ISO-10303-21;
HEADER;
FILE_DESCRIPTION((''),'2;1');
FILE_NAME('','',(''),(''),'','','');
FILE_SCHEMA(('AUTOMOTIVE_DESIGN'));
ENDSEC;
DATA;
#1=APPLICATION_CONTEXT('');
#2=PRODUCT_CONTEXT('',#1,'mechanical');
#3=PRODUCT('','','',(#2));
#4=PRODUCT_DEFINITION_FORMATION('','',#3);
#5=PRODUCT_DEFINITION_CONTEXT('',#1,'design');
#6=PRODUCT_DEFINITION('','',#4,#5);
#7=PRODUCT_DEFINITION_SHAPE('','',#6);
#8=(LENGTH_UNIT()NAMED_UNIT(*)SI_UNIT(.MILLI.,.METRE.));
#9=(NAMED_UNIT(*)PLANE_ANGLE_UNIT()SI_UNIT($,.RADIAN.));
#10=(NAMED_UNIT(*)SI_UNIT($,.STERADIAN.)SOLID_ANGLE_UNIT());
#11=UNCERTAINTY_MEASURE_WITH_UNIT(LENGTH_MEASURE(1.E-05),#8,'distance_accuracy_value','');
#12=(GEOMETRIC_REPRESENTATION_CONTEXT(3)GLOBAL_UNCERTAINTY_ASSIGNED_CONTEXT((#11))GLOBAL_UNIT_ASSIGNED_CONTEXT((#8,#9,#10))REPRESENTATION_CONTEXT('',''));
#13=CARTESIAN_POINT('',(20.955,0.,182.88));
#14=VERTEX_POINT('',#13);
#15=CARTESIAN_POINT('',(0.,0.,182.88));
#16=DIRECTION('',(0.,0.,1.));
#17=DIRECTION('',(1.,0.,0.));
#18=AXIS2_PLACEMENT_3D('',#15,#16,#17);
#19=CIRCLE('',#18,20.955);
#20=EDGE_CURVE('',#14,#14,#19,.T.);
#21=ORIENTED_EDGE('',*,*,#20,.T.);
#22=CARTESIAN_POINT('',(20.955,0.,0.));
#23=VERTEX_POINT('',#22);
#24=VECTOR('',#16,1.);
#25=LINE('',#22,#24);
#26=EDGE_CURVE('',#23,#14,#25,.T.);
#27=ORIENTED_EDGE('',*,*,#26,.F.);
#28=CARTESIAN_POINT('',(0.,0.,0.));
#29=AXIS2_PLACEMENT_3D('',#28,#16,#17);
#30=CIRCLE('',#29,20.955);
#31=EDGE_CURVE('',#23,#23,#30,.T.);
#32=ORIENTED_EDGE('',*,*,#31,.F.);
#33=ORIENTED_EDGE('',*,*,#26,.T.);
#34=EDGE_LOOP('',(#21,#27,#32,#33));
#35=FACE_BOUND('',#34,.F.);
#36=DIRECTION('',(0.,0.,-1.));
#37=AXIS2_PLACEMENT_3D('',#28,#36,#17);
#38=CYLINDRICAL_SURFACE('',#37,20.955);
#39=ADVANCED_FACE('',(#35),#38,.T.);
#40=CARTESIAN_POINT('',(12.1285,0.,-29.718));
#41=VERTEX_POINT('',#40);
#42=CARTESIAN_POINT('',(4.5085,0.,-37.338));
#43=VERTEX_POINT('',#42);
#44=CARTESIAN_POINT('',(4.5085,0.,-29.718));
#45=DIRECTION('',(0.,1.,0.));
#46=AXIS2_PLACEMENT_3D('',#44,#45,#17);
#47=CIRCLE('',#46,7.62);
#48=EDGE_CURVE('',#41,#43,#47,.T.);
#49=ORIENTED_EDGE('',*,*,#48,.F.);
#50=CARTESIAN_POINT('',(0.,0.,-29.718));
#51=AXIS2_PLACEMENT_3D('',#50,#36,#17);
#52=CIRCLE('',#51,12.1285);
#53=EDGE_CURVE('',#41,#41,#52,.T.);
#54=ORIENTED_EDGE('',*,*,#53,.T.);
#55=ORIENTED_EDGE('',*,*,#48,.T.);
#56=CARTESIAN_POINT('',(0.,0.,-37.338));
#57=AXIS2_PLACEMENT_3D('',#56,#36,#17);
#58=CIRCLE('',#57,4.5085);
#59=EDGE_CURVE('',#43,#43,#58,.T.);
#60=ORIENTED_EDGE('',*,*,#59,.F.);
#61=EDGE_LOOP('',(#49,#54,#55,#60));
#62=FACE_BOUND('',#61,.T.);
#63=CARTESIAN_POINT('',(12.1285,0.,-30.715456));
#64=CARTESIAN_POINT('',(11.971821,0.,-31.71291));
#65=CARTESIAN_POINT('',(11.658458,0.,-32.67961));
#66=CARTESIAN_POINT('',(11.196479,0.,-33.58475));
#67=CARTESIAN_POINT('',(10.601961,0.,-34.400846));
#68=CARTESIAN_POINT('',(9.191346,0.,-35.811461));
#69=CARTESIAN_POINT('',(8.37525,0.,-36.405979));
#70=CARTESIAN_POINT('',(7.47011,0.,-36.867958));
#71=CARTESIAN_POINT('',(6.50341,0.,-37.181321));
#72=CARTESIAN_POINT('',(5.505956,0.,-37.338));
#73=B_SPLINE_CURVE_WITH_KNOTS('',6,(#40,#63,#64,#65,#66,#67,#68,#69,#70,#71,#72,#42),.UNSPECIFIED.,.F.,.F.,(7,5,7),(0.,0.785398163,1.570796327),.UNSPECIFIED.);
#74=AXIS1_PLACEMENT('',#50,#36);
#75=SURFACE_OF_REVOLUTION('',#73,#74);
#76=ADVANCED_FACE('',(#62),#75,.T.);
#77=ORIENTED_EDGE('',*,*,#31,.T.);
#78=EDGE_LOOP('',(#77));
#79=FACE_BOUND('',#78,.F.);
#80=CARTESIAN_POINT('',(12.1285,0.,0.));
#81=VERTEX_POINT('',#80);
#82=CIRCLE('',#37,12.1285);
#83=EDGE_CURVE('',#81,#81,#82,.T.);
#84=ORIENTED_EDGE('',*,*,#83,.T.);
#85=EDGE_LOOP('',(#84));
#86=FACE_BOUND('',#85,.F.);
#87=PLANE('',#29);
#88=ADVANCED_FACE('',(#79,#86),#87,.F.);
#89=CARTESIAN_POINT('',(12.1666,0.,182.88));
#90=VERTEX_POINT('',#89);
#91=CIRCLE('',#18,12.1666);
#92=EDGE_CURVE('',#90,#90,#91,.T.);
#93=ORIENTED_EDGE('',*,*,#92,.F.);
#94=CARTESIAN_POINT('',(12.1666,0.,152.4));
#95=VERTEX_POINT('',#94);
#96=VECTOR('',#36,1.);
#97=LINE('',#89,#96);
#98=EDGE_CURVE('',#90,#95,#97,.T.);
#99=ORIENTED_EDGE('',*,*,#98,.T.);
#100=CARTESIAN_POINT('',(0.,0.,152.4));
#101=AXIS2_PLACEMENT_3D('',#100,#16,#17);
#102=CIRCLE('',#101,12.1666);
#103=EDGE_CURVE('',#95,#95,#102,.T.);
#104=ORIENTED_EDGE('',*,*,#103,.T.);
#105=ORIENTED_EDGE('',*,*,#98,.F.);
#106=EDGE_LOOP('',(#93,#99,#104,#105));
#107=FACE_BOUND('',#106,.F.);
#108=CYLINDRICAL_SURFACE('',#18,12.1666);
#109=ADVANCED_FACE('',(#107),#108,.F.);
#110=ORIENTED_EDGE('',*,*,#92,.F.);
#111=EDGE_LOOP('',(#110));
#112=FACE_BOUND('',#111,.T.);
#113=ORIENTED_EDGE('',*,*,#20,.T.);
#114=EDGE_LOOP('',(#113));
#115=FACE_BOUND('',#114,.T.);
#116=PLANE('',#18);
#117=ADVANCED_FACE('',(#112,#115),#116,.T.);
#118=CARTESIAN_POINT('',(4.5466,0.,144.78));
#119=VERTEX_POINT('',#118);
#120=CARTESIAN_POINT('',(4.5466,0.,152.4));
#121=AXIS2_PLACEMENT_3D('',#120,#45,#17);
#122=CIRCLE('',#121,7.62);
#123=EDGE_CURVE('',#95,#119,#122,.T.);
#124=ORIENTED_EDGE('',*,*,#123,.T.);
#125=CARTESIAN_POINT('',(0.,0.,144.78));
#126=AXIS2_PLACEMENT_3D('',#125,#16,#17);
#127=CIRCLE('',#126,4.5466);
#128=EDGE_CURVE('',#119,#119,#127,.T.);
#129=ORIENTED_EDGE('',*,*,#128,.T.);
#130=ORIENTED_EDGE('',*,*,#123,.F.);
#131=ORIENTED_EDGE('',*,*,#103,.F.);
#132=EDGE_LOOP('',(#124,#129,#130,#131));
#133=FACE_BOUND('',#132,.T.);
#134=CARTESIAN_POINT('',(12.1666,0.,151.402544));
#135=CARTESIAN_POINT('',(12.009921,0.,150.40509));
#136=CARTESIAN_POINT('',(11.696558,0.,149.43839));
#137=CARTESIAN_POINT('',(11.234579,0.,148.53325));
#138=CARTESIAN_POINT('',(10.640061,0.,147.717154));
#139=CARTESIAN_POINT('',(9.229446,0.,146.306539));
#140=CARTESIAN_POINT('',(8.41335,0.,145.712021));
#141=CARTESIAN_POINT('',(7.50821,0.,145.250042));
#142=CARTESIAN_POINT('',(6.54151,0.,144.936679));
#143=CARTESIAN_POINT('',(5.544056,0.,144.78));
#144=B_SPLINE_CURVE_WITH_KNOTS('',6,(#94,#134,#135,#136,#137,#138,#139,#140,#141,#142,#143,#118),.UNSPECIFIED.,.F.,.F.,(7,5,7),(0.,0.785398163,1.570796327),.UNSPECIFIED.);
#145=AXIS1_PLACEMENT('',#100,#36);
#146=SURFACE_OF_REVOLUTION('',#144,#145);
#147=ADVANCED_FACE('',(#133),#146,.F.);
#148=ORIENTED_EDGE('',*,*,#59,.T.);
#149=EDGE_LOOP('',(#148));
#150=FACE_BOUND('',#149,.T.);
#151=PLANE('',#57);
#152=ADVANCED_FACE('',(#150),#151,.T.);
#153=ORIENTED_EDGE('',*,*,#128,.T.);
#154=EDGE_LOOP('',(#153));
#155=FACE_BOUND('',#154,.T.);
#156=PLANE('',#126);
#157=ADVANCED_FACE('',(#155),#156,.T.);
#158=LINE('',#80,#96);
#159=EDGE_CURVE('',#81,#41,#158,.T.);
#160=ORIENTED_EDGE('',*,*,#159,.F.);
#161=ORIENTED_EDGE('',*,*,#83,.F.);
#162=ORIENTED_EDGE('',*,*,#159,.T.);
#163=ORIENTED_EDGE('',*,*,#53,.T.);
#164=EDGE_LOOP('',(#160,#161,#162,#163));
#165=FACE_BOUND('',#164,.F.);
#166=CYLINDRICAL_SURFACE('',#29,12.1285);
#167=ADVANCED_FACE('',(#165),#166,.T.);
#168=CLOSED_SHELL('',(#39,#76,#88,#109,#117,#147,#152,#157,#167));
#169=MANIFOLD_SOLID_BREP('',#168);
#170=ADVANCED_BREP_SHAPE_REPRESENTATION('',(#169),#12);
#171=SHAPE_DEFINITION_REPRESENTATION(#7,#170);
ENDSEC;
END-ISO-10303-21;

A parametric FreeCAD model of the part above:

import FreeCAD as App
import Part
import Sketcher
from FreeCAD import Vector
Q = App.Units.Quantity


def edges_at(feature, points):
    """Names of the edges that pass closest to the given points."""
    edges = feature.Shape.Edges
    near = lambda p: min(range(len(edges)), key=lambda i: edges[i].distToShape(Part.Vertex(*p))[0])
    return sorted({f"Edge{near(p) + 1}" for p in points})

doc = App.newDocument("Part")
body = doc.addObject("PartDesign::Body", "Body")

sketch1 = body.newObject("Sketcher::SketchObject", "Sketch")
sketch1.AttachmentSupport = (doc.getObject("XY_Plane"), [""])
sketch1.MapMode = "FlatFace"
sketch1.addGeometry(Part.Circle(Vector(0, 0, 0), Vector(0, 0, 1), 20.955), False)
sketch1.addConstraint(Sketcher.Constraint("Coincident", 0, 3, -1, 1))
sketch1.addConstraint(Sketcher.Constraint("Diameter", 0, Q("1.65 in")))
pad1 = body.newObject("PartDesign::Pad", "Pad")
pad1.Profile = sketch1
pad1.Length = Q("7.2 in")

sketch2 = body.newObject("Sketcher::SketchObject", "Sketch001")
sketch2.AttachmentSupport = (doc.getObject("XY_Plane"), [""])
sketch2.MapMode = "FlatFace"
sketch2.addGeometry(Part.Circle(Vector(0, 0, 0), Vector(0, 0, 1), 12.1285), False)
sketch2.addConstraint(Sketcher.Constraint("Coincident", 0, 3, -1, 1))
sketch2.addConstraint(Sketcher.Constraint("Diameter", 0, Q("0.955 in")))
pad2 = body.newObject("PartDesign::Pad", "Pad001")
pad2.Profile = sketch2
pad2.Length = Q("1.47 in")
pad2.Reversed = True
doc.recompute()

fillet = body.newObject("PartDesign::Fillet", "Fillet")
fillet.Base = (pad2, edges_at(pad2, [(-12.129, 0, -37.338)]))
fillet.Radius = Q("0.3 in")

sketch3 = body.newObject("Sketcher::SketchObject", "Sketch002")
sketch3.AttachmentSupport = (doc.getObject("XY_Plane"), [""])
sketch3.MapMode = "FlatFace"
sketch3.AttachmentOffset = App.Placement(Vector(0, 0, 7.2 * 25.4), App.Rotation())
sketch3.addGeometry(Part.Circle(Vector(0, 0, 0), Vector(0, 0, 1), 12.1666), False)
sketch3.addConstraint(Sketcher.Constraint("Coincident", 0, 3, -1, 1))
sketch3.addConstraint(Sketcher.Constraint("Diameter", 0, Q("0.958 in")))
pocket1 = body.newObject("PartDesign::Pocket", "Pocket")
pocket1.Profile = sketch3
pocket1.Length = Q("1.5 in")
doc.recompute()

fillet2 = body.newObject("PartDesign::Fillet", "Fillet001")
fillet2.Base = (pocket1, edges_at(pocket1, [(-12.167, 0, 144.78)]))
fillet2.Radius = Q("0.3 in")

doc.recompute()
